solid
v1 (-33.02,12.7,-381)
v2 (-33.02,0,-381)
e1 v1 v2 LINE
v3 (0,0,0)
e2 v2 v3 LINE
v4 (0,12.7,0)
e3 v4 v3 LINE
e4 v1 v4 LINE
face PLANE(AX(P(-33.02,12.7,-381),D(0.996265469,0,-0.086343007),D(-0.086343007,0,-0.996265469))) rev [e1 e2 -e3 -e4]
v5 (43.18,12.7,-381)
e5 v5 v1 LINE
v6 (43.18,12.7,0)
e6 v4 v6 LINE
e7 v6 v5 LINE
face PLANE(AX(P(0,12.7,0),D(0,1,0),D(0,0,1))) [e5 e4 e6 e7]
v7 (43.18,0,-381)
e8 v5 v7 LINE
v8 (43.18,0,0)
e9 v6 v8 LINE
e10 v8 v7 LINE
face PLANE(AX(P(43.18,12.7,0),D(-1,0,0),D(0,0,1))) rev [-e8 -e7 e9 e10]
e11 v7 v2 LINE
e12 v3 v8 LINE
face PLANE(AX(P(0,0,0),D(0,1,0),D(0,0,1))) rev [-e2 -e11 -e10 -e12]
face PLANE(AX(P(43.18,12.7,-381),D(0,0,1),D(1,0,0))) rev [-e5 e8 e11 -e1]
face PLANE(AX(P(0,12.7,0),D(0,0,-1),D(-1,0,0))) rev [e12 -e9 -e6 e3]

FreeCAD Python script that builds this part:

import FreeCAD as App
import Part
import Sketcher
Q = App.Units.Quantity

doc = App.newDocument("Part")
body = doc.addObject("PartDesign::Body", "Body")

# Sketch on XZ plane
sketch1 = body.newObject("Sketcher::SketchObject", "Sketch")
sketch1.AttachmentSupport = (doc.getObject("XZ_Plane"), [""])
sketch1.MapMode = "FlatFace"
sketch1.addGeometry(Part.LineSegment(App.Vector(0, 0, 0), App.Vector(43.18, 0, 0)), False)
sketch1.addGeometry(Part.LineSegment(App.Vector(43.18, 0, 0), App.Vector(43.18, -381, 0)), False)
sketch1.addGeometry(Part.LineSegment(App.Vector(43.18, -381, 0), App.Vector(-33.02, -381, 0)), False)
sketch1.addGeometry(Part.LineSegment(App.Vector(-33.02, -381, 0), App.Vector(0, 0, 0)), False)
sketch1.addConstraint(Sketcher.Constraint("Coincident", 0, 2, 1, 1))
sketch1.addConstraint(Sketcher.Constraint("Coincident", 1, 2, 2, 1))
sketch1.addConstraint(Sketcher.Constraint("Coincident", 2, 2, 3, 1))
sketch1.addConstraint(Sketcher.Constraint("Coincident", 3, 2, 0, 1))
sketch1.addConstraint(Sketcher.Constraint("Horizontal", 0))
sketch1.addConstraint(Sketcher.Constraint("Vertical", 1))
sketch1.addConstraint(Sketcher.Constraint("Horizontal", 2))
sketch1.addConstraint(Sketcher.Constraint("Coincident", 3, 2, -1, 1))
sketch1.addConstraint(Sketcher.Constraint("DistanceX", 2, 2, 2, 1, Q("3 in")))
sketch1.addConstraint(Sketcher.Constraint("DistanceY", 1, 2, 1, 1, Q("15 in")))
sketch1.addConstraint(Sketcher.Constraint("DistanceX", 0, 1, 0, 2, Q("1.7 in")))
pad1 = body.newObject("PartDesign::Pad", "Pad")
pad1.Profile = sketch1
pad1.Length = Q("0.5 in")
pad1.Reversed = True

doc.recompute()
